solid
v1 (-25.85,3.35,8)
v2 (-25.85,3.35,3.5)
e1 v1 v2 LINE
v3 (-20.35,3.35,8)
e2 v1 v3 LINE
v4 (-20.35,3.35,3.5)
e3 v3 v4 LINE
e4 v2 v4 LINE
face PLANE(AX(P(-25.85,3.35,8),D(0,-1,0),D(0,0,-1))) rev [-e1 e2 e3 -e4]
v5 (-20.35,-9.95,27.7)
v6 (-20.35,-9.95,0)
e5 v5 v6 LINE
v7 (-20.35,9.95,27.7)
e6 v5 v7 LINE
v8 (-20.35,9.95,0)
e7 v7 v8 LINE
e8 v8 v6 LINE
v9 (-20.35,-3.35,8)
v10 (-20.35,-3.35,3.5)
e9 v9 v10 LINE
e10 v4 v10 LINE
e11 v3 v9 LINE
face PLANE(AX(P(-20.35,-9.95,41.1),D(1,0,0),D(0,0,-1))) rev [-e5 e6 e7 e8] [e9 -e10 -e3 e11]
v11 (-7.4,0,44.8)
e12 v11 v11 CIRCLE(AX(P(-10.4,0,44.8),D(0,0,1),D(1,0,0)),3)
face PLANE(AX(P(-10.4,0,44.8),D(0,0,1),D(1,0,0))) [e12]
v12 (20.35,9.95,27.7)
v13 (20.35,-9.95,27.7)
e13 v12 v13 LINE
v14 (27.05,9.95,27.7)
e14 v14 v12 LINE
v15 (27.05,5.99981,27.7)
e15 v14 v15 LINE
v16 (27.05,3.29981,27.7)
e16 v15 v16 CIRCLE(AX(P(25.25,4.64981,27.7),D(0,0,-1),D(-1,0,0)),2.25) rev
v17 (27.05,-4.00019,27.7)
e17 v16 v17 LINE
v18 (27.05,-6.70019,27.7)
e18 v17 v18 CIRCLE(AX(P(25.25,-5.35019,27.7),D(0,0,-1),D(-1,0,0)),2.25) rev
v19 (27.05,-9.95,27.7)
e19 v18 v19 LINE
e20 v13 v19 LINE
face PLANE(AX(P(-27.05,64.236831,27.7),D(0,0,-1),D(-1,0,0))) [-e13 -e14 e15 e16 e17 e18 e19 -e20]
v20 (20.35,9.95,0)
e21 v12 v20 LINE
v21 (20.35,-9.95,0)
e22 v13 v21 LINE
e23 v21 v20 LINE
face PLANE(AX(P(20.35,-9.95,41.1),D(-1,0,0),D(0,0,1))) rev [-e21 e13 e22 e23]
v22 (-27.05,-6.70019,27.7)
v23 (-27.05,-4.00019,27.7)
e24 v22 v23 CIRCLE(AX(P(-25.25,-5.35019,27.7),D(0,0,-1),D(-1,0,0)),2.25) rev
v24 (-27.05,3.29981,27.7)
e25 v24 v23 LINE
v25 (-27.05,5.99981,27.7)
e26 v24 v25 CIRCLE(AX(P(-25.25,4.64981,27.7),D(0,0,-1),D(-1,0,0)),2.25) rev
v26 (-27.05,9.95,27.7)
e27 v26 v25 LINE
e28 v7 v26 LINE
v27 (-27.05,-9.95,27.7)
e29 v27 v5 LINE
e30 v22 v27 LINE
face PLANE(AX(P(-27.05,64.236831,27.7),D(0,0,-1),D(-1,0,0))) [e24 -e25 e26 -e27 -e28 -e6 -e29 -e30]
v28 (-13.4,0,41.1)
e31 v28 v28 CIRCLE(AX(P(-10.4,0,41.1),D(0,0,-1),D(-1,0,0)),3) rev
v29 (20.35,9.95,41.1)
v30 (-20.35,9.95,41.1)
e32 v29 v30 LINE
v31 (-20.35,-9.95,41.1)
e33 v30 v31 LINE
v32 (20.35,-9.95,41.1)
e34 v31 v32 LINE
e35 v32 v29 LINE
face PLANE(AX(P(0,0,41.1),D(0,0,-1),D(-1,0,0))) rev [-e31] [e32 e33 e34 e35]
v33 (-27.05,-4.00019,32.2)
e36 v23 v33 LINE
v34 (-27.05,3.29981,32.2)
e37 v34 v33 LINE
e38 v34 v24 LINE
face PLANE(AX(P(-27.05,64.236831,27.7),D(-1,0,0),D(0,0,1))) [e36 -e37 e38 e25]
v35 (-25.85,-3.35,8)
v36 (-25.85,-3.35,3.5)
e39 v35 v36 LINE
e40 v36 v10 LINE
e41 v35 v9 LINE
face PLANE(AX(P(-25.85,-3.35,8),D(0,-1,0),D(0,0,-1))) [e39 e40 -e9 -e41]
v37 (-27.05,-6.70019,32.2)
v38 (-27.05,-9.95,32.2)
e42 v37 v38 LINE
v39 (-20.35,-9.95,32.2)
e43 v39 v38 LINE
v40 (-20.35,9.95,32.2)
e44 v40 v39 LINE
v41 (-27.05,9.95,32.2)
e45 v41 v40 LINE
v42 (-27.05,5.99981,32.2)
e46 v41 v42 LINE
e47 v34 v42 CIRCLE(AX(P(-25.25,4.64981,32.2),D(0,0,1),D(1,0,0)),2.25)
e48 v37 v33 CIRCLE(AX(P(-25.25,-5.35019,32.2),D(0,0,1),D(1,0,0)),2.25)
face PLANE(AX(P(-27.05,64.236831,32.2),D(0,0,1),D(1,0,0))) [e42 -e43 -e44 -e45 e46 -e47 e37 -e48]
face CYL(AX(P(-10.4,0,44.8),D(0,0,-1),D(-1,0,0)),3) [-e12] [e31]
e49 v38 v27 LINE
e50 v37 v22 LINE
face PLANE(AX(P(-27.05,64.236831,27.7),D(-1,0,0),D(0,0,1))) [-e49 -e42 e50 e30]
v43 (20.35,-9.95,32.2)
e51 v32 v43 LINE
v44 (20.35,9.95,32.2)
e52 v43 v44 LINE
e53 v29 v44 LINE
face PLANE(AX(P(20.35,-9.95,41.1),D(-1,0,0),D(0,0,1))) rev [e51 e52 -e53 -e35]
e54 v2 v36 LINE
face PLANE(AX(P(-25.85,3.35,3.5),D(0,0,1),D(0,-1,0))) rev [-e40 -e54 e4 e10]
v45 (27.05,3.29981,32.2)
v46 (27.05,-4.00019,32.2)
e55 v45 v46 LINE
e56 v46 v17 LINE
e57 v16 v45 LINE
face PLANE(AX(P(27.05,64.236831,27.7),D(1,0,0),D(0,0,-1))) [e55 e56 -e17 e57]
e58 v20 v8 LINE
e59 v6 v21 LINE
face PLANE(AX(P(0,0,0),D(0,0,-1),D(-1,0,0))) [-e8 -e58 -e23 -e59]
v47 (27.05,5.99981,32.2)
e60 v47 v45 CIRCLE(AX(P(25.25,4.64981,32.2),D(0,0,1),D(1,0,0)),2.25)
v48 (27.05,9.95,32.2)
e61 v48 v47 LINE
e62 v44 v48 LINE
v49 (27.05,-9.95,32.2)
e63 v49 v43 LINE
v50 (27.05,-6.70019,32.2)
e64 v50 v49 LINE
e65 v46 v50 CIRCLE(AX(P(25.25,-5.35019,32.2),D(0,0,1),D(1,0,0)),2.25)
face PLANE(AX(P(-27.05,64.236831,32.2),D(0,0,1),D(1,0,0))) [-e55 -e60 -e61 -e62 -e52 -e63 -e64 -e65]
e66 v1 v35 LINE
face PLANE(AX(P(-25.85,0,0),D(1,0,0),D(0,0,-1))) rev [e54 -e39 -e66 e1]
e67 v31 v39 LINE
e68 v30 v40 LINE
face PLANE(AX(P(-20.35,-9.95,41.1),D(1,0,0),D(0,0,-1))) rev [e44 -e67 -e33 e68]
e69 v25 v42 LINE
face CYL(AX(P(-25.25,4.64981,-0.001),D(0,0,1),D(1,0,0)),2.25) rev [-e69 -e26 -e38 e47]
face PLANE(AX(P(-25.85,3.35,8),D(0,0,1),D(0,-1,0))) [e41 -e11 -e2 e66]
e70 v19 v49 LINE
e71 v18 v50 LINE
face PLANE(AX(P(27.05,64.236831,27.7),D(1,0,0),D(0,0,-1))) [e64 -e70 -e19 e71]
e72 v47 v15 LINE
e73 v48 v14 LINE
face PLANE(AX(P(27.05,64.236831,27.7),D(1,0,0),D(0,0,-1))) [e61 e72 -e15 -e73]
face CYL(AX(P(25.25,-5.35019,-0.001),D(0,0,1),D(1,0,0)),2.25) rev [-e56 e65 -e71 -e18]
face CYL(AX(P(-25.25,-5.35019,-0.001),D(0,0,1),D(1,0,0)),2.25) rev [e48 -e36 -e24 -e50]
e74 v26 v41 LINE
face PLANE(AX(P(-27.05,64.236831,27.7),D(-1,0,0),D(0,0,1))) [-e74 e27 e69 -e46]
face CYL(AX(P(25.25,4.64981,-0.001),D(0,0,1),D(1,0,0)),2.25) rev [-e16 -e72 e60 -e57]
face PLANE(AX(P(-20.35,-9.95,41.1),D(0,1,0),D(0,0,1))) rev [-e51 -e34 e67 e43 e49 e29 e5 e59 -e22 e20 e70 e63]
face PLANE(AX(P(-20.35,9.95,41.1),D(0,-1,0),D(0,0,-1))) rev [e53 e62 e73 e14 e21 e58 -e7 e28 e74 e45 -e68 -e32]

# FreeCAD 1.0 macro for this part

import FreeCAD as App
import Part
import Sketcher
from FreeCAD import Vector

doc = App.newDocument("Part")
body = doc.addObject("PartDesign::Body", "Body")

# Sketch on XY plane
sketch1 = doc.addObject("Sketcher::SketchObject", "Sketch")
body.addObject(sketch1)
sketch1.AttachmentSupport = (doc.XY_Plane, [""])
sketch1.MapMode = "FlatFace"
sketch1.addGeometry([
    Part.LineSegment(Vector(-20, 10, 0), Vector(-20, -10, 0)),
    Part.LineSegment(Vector(-20, -10, 0), Vector(20, -10, 0)),
    Part.LineSegment(Vector(20, -10, 0), Vector(20, 10, 0)),
    Part.LineSegment(Vector(20, 10, 0), Vector(-20, 10, 0)),
], False)
sketch1.addConstraint([
    Sketcher.Constraint("Coincident", 0, 2, 1, 1),
    Sketcher.Constraint("Coincident", 1, 2, 2, 1),
    Sketcher.Constraint("Coincident", 2, 2, 3, 1),
    Sketcher.Constraint("Coincident", 3, 2, 0, 1),
    Sketcher.Constraint("Vertical", 0),
    Sketcher.Constraint("Horizontal", 1),
    Sketcher.Constraint("Vertical", 2),
    Sketcher.Constraint("Horizontal", 3),
    Sketcher.Constraint("Symmetric", 0, 2, 2, 2, -1, 1),
    Sketcher.Constraint("DistanceX", 1, 1, 1, 2, 40.7),
    Sketcher.Constraint("DistanceY", 0, 2, 0, 1, 19.9),
])
pad1 = doc.addObject("PartDesign::Pad", "Pad")
body.addObject(pad1)
pad1.Profile = sketch1
pad1.Length = 41.1

# Sketch on XZ plane
sketch2 = doc.addObject("Sketcher::SketchObject", "Sketch001")
body.addObject(sketch2)
sketch2.AttachmentSupport = (doc.XZ_Plane, [""])
sketch2.MapMode = "FlatFace"
sketch2.AttachmentOffset = App.Placement(Vector(0, 0, 9.95), App.Rotation())
sketch2.addGeometry([
    Part.LineSegment(Vector(-27.1, 32.2, 0), Vector(-27.1, 27.7, 0)),
    Part.LineSegment(Vector(-27.1, 27.7, 0), Vector(27.1, 27.7, 0)),
    Part.LineSegment(Vector(27.1, 27.7, 0), Vector(27.1, 32.2, 0)),
    Part.LineSegment(Vector(27.1, 32.2, 0), Vector(-27.1, 32.2, 0)),
], False)
sketch2.addConstraint([
    Sketcher.Constraint("Coincident", 0, 2, 1, 1),
    Sketcher.Constraint("Coincident", 1, 2, 2, 1),
    Sketcher.Constraint("Coincident", 2, 2, 3, 1),
    Sketcher.Constraint("Coincident", 3, 2, 0, 1),
    Sketcher.Constraint("Vertical", 0),
    Sketcher.Constraint("Horizontal", 1),
    Sketcher.Constraint("Vertical", 2),
    Sketcher.Constraint("Horizontal", 3),
    Sketcher.Constraint("DistanceX", 1, 1, 1, 2, 54.1),
    Sketcher.Constraint("DistanceY", 0, 2, 0, 1, 4.5),
    Sketcher.Constraint("DistanceY", -1, 1, 0, 2, 27.7),
    Sketcher.Constraint("DistanceX", 0, 2, -1, 1, 27.05),
])
pad2 = doc.addObject("PartDesign::Pad", "Pad001")
body.addObject(pad2)
pad2.Profile = sketch2
pad2.Length = 19.9
pad2.Reversed = True

# Sketch on XY plane
sketch3 = doc.addObject("Sketcher::SketchObject", "Sketch002")
body.addObject(sketch3)
sketch3.AttachmentSupport = (doc.XY_Plane, [""])
sketch3.MapMode = "FlatFace"
sketch3.AttachmentOffset = App.Placement(Vector(0, 0, 32.2), App.Rotation())
sketch3.addGeometry(Part.Circle(Vector(-25.2, 4.6, 0), Vector(0, 0, 1), 2.2), False)
sketch3.addConstraint([
    Sketcher.Constraint("Diameter", 0, 4.5),
    Sketcher.Constraint("DistanceX", 0, 3, -1, 1, 25.25),
    Sketcher.Constraint("DistanceY", -1, 1, 0, 3, 4.64981),
])
pocket1 = doc.addObject("PartDesign::Pocket", "Pocket")
body.addObject(pocket1)
pocket1.Profile = sketch3
pocket1.Type = "UpToFirst"

# Sketch on XY plane
sketch4 = doc.addObject("Sketcher::SketchObject", "Sketch003")
body.addObject(sketch4)
sketch4.AttachmentSupport = (doc.XY_Plane, [""])
sketch4.MapMode = "FlatFace"
sketch4.AttachmentOffset = App.Placement(Vector(0, 0, 32.2), App.Rotation())
sketch4.addGeometry(Part.Circle(Vector(-25.2, -5.4, 0), Vector(0, 0, 1), 2.2), False)
sketch4.addConstraint([
    Sketcher.Constraint("Diameter", 0, 4.5),
    Sketcher.Constraint("DistanceX", 0, 3, -1, 1, 25.25),
    Sketcher.Constraint("DistanceY", 0, 3, -1, 1, 5.35019),
])
pocket2 = doc.addObject("PartDesign::Pocket", "Pocket001")
body.addObject(pocket2)
pocket2.Profile = sketch4
pocket2.Type = "UpToFirst"

# Sketch on XY plane
sketch5 = doc.addObject("Sketcher::SketchObject", "Sketch004")
body.addObject(sketch5)
sketch5.AttachmentSupport = (doc.XY_Plane, [""])
sketch5.MapMode = "FlatFace"
sketch5.AttachmentOffset = App.Placement(Vector(0, 0, 32.2), App.Rotation())
sketch5.addGeometry(Part.Circle(Vector(25.2, 4.6, 0), Vector(0, 0, 1), 2.2), False)
sketch5.addConstraint([
    Sketcher.Constraint("Diameter", 0, 4.5),
    Sketcher.Constraint("DistanceX", -1, 1, 0, 3, 25.25),
    Sketcher.Constraint("DistanceY", -1, 1, 0, 3, 4.64981),
])
pocket3 = doc.addObject("PartDesign::Pocket", "Pocket002")
body.addObject(pocket3)
pocket3.Profile = sketch5
pocket3.Type = "UpToFirst"

# Sketch on XY plane
sketch6 = doc.addObject("Sketcher::SketchObject", "Sketch005")
body.addObject(sketch6)
sketch6.AttachmentSupport = (doc.XY_Plane, [""])
sketch6.MapMode = "FlatFace"
sketch6.AttachmentOffset = App.Placement(Vector(0, 0, 32.2), App.Rotation())
sketch6.addGeometry(Part.Circle(Vector(25.2, -5.4, 0), Vector(0, 0, 1), 2.2), False)
sketch6.addConstraint([
    Sketcher.Constraint("Diameter", 0, 4.5),
    Sketcher.Constraint("DistanceX", -1, 1, 0, 3, 25.25),
    Sketcher.Constraint("DistanceY", 0, 3, -1, 1, 5.35019),
])
pocket4 = doc.addObject("PartDesign::Pocket", "Pocket003")
body.addObject(pocket4)
pocket4.Profile = sketch6
pocket4.Type = "UpToFirst"

# Sketch on XY plane
sketch7 = doc.addObject("Sketcher::SketchObject", "Sketch006")
body.addObject(sketch7)
sketch7.AttachmentSupport = (doc.XY_Plane, [""])
sketch7.MapMode = "FlatFace"
sketch7.AttachmentOffset = App.Placement(Vector(0, 0, 41.1), App.Rotation())
sketch7.addGeometry(Part.Circle(Vector(-10.4, 0, 0), Vector(0, 0, 1), 3), False)
sketch7.addConstraint([
    Sketcher.Constraint("PointOnObject", 0, 3, -1),
    Sketcher.Constraint("Diameter", 0, 6.0),
    Sketcher.Constraint("DistanceX", 0, 3, -1, 1, 10.4),
])
pad3 = doc.addObject("PartDesign::Pad", "Pad002")
body.addObject(pad3)
pad3.Profile = sketch7
pad3.Length = 3.7

# Sketch on YZ plane
sketch8 = doc.addObject("Sketcher::SketchObject", "Sketch007")
body.addObject(sketch8)
sketch8.AttachmentSupport = (doc.YZ_Plane, [""])
sketch8.MapMode = "FlatFace"
sketch8.AttachmentOffset = App.Placement(Vector(0, 0, -20.35), App.Rotation())
sketch8.addGeometry([
    Part.LineSegment(Vector(3.4, 3.5, 0), Vector(-3.4, 3.5, 0)),
    Part.LineSegment(Vector(-3.4, 3.5, 0), Vector(-3.4, 8, 0)),
    Part.LineSegment(Vector(-3.4, 8, 0), Vector(3.4, 8, 0)),
    Part.LineSegment(Vector(3.4, 8, 0), Vector(3.4, 3.5, 0)),
], False)
sketch8.addConstraint([
    Sketcher.Constraint("Coincident", 0, 2, 1, 1),
    Sketcher.Constraint("Coincident", 1, 2, 2, 1),
    Sketcher.Constraint("Coincident", 2, 2, 3, 1),
    Sketcher.Constraint("Coincident", 3, 2, 0, 1),
    Sketcher.Constraint("Horizontal", 0),
    Sketcher.Constraint("Vertical", 1),
    Sketcher.Constraint("Horizontal", 2),
    Sketcher.Constraint("Vertical", 3),
    Sketcher.Constraint("DistanceX", 0, 2, 0, 1, 6.7),
    Sketcher.Constraint("DistanceY", 1, 1, 1, 2, 4.5),
    Sketcher.Constraint("DistanceY", -1, 1, 1, 2, 8.0),
    Sketcher.Constraint("DistanceX", 0, 2, -1, 1, 3.35),
])
pad4 = doc.addObject("PartDesign::Pad", "Pad003")
body.addObject(pad4)
pad4.Profile = sketch8
pad4.Length = 5.5
pad4.Reversed = True

doc.recompute()
